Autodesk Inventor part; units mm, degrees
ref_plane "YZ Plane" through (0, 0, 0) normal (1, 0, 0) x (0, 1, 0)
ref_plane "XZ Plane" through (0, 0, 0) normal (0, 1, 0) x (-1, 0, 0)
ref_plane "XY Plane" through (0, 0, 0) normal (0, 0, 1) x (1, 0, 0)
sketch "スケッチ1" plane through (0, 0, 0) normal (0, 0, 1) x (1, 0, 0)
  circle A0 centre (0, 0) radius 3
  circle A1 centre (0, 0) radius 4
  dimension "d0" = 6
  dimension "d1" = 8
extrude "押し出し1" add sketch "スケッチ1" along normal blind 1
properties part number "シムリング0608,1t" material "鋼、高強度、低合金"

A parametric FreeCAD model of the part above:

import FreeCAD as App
import Part
import Sketcher
Q = App.Units.Quantity

doc = App.newDocument("Part")
body = doc.addObject("PartDesign::Body", "Body")

# Sketch on XY plane
sketch1 = body.newObject("Sketcher::SketchObject", "Sketch")
sketch1.AttachmentSupport = (doc.getObject("XY_Plane"), [""])
sketch1.MapMode = "FlatFace"
sketch1.addGeometry([
    Part.Circle(App.Vector(0, 0, 0), App.Vector(0, 0, 1), 4),
    Part.Circle(App.Vector(0, 0, 0), App.Vector(0, 0, 1), 3),
], False)
sketch1.addConstraint([
    Sketcher.Constraint("Coincident", 0, 3, -1, 1),
    Sketcher.Constraint("Coincident", 1, 3, -1, 1),
    Sketcher.Constraint("Diameter", 0, Q("8 mm")),
    Sketcher.Constraint("Diameter", 1, Q("6 mm")),
])
pad1 = body.newObject("PartDesign::Pad", "Pad")
pad1.Profile = sketch1
pad1.Length = 1

doc.recompute()
